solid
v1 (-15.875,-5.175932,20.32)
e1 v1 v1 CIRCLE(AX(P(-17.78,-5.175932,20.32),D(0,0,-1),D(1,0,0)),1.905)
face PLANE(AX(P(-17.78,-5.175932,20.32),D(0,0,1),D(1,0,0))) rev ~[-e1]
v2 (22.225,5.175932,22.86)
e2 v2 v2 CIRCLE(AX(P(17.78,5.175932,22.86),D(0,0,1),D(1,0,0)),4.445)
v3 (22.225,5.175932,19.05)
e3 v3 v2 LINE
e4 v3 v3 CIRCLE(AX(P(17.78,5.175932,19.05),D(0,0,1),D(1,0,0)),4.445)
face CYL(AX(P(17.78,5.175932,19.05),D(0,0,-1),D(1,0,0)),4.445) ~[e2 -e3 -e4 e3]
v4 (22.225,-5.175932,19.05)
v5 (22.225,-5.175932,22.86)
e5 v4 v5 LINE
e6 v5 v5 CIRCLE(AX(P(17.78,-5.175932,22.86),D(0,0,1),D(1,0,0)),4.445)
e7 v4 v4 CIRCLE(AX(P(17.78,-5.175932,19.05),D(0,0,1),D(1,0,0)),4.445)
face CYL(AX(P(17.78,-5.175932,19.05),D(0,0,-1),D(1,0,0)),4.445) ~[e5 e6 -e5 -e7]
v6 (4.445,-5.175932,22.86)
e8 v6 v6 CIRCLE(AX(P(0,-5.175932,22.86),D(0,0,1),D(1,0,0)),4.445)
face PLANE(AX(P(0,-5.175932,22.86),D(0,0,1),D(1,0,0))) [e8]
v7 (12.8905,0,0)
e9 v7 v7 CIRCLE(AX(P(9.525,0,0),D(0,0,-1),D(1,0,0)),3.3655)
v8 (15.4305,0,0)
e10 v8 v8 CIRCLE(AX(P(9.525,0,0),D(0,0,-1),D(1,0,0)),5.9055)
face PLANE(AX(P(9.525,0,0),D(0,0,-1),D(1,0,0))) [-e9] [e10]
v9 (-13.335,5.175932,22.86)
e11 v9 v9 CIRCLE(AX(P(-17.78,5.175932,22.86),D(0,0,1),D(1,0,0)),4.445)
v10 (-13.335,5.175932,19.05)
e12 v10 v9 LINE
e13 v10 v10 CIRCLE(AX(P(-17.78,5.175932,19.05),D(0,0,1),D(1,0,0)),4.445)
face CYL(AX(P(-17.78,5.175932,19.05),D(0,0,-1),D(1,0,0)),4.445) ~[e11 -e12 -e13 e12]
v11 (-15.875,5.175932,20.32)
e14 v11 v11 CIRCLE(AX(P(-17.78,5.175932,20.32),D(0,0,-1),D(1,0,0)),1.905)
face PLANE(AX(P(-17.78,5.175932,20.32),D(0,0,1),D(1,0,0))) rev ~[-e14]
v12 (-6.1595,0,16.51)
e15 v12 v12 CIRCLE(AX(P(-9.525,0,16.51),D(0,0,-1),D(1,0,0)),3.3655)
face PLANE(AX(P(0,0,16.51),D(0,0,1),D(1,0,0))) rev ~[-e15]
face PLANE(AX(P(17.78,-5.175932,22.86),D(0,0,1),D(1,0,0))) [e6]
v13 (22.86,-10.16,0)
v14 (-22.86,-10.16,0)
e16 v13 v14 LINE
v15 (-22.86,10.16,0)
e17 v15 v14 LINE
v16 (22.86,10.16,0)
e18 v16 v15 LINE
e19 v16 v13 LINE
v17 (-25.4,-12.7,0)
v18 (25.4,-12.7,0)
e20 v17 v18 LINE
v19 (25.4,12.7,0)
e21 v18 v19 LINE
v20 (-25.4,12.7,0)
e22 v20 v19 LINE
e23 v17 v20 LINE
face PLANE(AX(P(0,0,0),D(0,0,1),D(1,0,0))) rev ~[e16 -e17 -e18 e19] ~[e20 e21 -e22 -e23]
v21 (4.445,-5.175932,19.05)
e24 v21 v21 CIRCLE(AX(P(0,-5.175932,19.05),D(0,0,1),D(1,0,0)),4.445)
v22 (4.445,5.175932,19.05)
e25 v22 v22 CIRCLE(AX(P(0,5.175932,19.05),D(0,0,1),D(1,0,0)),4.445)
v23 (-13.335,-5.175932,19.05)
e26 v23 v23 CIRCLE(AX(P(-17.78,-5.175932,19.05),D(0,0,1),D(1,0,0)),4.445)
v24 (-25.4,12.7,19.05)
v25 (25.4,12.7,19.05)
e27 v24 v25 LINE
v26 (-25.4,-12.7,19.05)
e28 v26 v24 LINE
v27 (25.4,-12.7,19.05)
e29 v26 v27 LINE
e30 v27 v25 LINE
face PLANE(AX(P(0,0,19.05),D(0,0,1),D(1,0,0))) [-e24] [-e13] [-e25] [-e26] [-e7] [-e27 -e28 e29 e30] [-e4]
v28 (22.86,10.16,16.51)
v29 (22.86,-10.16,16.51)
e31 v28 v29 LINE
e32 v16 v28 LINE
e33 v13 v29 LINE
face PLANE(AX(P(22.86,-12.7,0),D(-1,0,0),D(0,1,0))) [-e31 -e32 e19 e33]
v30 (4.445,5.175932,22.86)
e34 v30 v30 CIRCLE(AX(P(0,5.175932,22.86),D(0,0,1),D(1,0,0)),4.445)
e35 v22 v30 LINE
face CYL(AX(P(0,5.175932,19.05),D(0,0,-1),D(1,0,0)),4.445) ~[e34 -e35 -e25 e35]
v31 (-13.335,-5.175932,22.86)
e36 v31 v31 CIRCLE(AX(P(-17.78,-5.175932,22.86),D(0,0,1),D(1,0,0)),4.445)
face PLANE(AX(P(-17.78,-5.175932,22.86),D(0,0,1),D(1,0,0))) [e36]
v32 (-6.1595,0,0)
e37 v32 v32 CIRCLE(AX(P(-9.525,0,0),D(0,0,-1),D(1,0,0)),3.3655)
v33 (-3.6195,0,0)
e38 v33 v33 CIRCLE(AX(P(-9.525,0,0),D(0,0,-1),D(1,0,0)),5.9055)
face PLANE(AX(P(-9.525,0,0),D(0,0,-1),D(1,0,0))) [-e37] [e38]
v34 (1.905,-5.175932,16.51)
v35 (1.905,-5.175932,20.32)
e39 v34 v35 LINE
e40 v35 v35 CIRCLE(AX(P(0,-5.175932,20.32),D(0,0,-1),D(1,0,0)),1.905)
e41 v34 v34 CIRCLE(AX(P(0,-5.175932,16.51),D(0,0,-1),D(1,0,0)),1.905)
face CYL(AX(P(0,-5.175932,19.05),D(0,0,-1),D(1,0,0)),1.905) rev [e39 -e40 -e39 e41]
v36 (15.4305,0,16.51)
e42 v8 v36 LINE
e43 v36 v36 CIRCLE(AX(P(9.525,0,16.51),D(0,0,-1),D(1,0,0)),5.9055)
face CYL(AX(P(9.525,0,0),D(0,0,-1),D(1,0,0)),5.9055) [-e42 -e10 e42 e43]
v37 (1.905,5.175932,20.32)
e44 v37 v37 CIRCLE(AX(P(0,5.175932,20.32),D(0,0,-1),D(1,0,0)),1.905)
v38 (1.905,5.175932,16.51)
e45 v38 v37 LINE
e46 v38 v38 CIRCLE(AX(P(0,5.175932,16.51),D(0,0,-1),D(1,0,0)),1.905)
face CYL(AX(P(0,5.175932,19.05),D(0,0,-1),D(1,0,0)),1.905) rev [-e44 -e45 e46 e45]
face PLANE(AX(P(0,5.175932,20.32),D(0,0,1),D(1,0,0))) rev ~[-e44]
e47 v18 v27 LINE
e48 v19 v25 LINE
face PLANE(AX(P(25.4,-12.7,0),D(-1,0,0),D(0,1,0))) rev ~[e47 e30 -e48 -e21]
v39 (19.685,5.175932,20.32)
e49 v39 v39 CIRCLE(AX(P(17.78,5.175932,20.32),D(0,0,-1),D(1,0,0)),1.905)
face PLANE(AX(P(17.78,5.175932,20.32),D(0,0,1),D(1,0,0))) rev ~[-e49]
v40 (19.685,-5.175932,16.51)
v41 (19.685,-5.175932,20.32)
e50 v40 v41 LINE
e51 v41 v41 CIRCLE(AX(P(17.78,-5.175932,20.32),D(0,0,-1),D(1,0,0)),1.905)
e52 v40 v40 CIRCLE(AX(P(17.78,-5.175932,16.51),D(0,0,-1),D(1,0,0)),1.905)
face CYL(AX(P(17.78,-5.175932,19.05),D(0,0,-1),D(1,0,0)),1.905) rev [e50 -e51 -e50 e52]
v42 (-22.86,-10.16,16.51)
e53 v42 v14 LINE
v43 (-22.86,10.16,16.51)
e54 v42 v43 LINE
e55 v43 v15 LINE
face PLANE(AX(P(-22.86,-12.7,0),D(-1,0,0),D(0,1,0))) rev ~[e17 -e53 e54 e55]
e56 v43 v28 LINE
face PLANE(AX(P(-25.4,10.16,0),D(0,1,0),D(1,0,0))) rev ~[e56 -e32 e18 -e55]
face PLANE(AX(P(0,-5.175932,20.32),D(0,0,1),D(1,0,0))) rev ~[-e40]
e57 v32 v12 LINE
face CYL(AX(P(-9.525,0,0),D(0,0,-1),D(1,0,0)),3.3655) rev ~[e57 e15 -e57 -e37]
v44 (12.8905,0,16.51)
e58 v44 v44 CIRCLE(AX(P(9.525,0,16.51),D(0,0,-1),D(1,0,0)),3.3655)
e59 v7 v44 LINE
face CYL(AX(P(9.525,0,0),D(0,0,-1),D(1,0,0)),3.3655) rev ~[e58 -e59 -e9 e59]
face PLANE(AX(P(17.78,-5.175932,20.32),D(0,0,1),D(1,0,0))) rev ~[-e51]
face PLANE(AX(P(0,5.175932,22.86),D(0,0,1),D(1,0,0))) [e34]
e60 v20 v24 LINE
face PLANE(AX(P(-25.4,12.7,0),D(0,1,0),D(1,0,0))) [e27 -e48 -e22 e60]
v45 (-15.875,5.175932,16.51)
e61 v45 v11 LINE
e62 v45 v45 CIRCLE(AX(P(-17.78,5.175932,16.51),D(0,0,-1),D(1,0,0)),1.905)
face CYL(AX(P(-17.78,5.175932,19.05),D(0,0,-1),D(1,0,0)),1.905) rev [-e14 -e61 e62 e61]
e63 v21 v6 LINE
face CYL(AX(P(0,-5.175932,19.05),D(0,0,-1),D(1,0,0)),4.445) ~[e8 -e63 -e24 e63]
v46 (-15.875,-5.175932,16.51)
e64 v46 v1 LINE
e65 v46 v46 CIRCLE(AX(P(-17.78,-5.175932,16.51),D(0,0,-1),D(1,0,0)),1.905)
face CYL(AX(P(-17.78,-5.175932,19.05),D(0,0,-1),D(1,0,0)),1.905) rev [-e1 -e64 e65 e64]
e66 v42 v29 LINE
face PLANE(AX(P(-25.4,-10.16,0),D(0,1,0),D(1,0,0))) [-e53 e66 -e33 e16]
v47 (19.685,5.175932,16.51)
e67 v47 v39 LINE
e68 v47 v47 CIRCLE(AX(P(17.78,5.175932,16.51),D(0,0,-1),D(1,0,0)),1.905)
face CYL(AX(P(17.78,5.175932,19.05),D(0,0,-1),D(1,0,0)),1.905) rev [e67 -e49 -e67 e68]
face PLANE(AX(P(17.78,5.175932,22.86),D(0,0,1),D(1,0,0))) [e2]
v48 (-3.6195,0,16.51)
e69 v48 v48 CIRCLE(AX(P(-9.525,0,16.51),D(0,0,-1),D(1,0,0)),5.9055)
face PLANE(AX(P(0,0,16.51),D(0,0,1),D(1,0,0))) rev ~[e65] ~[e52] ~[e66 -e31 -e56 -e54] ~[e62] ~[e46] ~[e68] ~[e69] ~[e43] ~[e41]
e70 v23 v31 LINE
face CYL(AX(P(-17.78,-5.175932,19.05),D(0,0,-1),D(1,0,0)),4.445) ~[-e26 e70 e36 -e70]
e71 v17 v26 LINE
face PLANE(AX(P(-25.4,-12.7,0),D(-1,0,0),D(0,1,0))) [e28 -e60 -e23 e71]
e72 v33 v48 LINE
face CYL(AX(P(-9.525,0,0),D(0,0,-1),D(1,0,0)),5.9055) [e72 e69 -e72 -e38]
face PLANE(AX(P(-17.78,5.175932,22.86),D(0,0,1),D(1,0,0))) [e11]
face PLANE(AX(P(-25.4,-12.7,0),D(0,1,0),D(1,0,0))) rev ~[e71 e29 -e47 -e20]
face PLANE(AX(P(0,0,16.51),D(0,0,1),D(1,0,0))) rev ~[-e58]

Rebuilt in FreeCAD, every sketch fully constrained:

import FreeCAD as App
import Part
import Sketcher
from FreeCAD import Vector
Q = App.Units.Quantity


def faces_at(feature, points):
    """Names of the faces that lie closest to the given points."""
    faces = feature.Shape.Faces
    near = lambda p: min(range(len(faces)), key=lambda i: faces[i].distToShape(Part.Vertex(*p))[0])
    return sorted({f"Face{near(p) + 1}" for p in points})


def add_polygon(sketch, points):
    """Adds a closed chain of lines whose ends are joined by coincident constraints."""
    first, n = sketch.GeometryCount, len(points)
    for a, b in zip(points, points[1:] + points[:1]):
        sketch.addGeometry(Part.LineSegment(App.Vector(*a, 0), App.Vector(*b, 0)), False)
    for i in range(n):
        sketch.addConstraint(Sketcher.Constraint("Coincident", first + i, 2, first + (i + 1) % n, 1))

doc = App.newDocument("Part")
body = doc.addObject("PartDesign::Body", "Body")

sketch1 = doc.addObject("Sketcher::SketchObject", "Sketch")
body.addObject(sketch1)
sketch1.AttachmentSupport = (doc.XY_Plane, [""])
sketch1.MapMode = "FlatFace"
add_polygon(sketch1, [(-25.4, 12.7), (-25.4, -12.7), (25.4, -12.7), (25.4, 12.7)])
sketch1.addConstraint([
    Sketcher.Constraint("Vertical", 0),
    Sketcher.Constraint("Horizontal", 1),
    Sketcher.Constraint("Vertical", 2),
    Sketcher.Constraint("Horizontal", 3),
    Sketcher.Constraint("Symmetric", 0, 2, 2, 2, -1, 1),
    Sketcher.Constraint("DistanceX", 1, 1, 1, 2, Q("2 in")),
    Sketcher.Constraint("DistanceY", 0, 2, 0, 1, Q("1 in")),
])
pad1 = doc.addObject("PartDesign::Pad", "Pad")
body.addObject(pad1)
pad1.Profile = sketch1
pad1.Length = Q("0.75 in")

sketch2 = doc.addObject("Sketcher::SketchObject", "Sketch001")
body.addObject(sketch2)
sketch2.AttachmentSupport = (doc.XY_Plane, [""])
sketch2.MapMode = "FlatFace"
sketch2.AttachmentOffset = App.Placement(Vector(0, 0, 0.75 * 25.4), App.Rotation())
sketch2.addGeometry([
    Part.Circle(Vector(-17.78, 5.175932, 0), Vector(0, 0, 1), 4.445),
    Part.Circle(Vector(0, 5.175932, 0), Vector(0, 0, 1), 4.445),
    Part.Circle(Vector(17.78, 5.175932, 0), Vector(0, 0, 1), 4.445),
    Part.Circle(Vector(17.78, -5.175932, 0), Vector(0, 0, 1), 4.445),
    Part.Circle(Vector(0, -5.175932, 0), Vector(0, 0, 1), 4.445),
    Part.Circle(Vector(-17.78, -5.175932, 0), Vector(0, 0, 1), 4.445),
], False)
sketch2.addConstraint([
    Sketcher.Constraint("Equal", 0, 1),
    Sketcher.Constraint("Equal", 1, 2),
    Sketcher.Constraint("Equal", 2, 3),
    Sketcher.Constraint("Equal", 3, 4),
    Sketcher.Constraint("Equal", 4, 5),
    Sketcher.Constraint("Symmetric", 0, 3, 3, 3, -1, 1),
    Sketcher.Constraint("Symmetric", 1, 3, 4, 3, -1, 1),
    Sketcher.Constraint("Symmetric", 2, 3, 5, 3, -1, 1),
    Sketcher.Constraint("Symmetric", 0, 3, 2, 3, -2),
    Sketcher.Constraint("PointOnObject", 1, 3, -2),
    Sketcher.Constraint("Horizontal", 0, 3, 1, 3),
    Sketcher.Constraint("Diameter", 0, Q("0.35 in")),
    Sketcher.Constraint("DistanceX", 0, 3, -1, 1, Q("0.7 in")),
    Sketcher.Constraint("DistanceY", -1, 1, 0, 3, 5.175932),
])
pad2 = doc.addObject("PartDesign::Pad", "Pad001")
body.addObject(pad2)
pad2.Profile = sketch2
pad2.Length = Q("0.15 in")
doc.recompute()

thickness = doc.addObject("PartDesign::Thickness", "Thickness")
body.addObject(thickness)
thickness.Base = (pad2, faces_at(pad2, [(0, 0, 0)]))
thickness.Value = Q("0.1 in")
thickness.Reversed = True
thickness.Join = "Intersection"

sketch3 = doc.addObject("Sketcher::SketchObject", "Sketch002")
body.addObject(sketch3)
sketch3.AttachmentSupport = (doc.XY_Plane, [""])
sketch3.MapMode = "FlatFace"
sketch3.addGeometry([
    Part.Circle(Vector(-9.525, 0, 0), Vector(0, 0, 1), 5.9055),
    Part.Circle(Vector(-9.525, 0, 0), Vector(0, 0, 1), 3.3655),
    Part.Circle(Vector(9.525, 0, 0), Vector(0, 0, 1), 5.9055),
    Part.Circle(Vector(9.525, 0, 0), Vector(0, 0, 1), 3.3655),
], False)
sketch3.addConstraint([
    Sketcher.Constraint("Coincident", 1, 3, 0, 3),
    Sketcher.Constraint("Coincident", 3, 3, 2, 3),
    Sketcher.Constraint("Equal", 0, 2),
    Sketcher.Constraint("Equal", 1, 3),
    Sketcher.Constraint("Symmetric", 0, 3, 2, 3, -1, 1),
    Sketcher.Constraint("PointOnObject", 0, 3, -1),
    Sketcher.Constraint("Diameter", 0, Q("0.465 in")),
    Sketcher.Constraint("Diameter", 1, Q("0.265 in")),
    Sketcher.Constraint("DistanceX", 0, 3, 2, 3, Q("0.75 in")),
])
pad3 = doc.addObject("PartDesign::Pad", "Pad002")
body.addObject(pad3)
pad3.Profile = sketch3
pad3.Type = "UpToLast"

doc.recompute()
